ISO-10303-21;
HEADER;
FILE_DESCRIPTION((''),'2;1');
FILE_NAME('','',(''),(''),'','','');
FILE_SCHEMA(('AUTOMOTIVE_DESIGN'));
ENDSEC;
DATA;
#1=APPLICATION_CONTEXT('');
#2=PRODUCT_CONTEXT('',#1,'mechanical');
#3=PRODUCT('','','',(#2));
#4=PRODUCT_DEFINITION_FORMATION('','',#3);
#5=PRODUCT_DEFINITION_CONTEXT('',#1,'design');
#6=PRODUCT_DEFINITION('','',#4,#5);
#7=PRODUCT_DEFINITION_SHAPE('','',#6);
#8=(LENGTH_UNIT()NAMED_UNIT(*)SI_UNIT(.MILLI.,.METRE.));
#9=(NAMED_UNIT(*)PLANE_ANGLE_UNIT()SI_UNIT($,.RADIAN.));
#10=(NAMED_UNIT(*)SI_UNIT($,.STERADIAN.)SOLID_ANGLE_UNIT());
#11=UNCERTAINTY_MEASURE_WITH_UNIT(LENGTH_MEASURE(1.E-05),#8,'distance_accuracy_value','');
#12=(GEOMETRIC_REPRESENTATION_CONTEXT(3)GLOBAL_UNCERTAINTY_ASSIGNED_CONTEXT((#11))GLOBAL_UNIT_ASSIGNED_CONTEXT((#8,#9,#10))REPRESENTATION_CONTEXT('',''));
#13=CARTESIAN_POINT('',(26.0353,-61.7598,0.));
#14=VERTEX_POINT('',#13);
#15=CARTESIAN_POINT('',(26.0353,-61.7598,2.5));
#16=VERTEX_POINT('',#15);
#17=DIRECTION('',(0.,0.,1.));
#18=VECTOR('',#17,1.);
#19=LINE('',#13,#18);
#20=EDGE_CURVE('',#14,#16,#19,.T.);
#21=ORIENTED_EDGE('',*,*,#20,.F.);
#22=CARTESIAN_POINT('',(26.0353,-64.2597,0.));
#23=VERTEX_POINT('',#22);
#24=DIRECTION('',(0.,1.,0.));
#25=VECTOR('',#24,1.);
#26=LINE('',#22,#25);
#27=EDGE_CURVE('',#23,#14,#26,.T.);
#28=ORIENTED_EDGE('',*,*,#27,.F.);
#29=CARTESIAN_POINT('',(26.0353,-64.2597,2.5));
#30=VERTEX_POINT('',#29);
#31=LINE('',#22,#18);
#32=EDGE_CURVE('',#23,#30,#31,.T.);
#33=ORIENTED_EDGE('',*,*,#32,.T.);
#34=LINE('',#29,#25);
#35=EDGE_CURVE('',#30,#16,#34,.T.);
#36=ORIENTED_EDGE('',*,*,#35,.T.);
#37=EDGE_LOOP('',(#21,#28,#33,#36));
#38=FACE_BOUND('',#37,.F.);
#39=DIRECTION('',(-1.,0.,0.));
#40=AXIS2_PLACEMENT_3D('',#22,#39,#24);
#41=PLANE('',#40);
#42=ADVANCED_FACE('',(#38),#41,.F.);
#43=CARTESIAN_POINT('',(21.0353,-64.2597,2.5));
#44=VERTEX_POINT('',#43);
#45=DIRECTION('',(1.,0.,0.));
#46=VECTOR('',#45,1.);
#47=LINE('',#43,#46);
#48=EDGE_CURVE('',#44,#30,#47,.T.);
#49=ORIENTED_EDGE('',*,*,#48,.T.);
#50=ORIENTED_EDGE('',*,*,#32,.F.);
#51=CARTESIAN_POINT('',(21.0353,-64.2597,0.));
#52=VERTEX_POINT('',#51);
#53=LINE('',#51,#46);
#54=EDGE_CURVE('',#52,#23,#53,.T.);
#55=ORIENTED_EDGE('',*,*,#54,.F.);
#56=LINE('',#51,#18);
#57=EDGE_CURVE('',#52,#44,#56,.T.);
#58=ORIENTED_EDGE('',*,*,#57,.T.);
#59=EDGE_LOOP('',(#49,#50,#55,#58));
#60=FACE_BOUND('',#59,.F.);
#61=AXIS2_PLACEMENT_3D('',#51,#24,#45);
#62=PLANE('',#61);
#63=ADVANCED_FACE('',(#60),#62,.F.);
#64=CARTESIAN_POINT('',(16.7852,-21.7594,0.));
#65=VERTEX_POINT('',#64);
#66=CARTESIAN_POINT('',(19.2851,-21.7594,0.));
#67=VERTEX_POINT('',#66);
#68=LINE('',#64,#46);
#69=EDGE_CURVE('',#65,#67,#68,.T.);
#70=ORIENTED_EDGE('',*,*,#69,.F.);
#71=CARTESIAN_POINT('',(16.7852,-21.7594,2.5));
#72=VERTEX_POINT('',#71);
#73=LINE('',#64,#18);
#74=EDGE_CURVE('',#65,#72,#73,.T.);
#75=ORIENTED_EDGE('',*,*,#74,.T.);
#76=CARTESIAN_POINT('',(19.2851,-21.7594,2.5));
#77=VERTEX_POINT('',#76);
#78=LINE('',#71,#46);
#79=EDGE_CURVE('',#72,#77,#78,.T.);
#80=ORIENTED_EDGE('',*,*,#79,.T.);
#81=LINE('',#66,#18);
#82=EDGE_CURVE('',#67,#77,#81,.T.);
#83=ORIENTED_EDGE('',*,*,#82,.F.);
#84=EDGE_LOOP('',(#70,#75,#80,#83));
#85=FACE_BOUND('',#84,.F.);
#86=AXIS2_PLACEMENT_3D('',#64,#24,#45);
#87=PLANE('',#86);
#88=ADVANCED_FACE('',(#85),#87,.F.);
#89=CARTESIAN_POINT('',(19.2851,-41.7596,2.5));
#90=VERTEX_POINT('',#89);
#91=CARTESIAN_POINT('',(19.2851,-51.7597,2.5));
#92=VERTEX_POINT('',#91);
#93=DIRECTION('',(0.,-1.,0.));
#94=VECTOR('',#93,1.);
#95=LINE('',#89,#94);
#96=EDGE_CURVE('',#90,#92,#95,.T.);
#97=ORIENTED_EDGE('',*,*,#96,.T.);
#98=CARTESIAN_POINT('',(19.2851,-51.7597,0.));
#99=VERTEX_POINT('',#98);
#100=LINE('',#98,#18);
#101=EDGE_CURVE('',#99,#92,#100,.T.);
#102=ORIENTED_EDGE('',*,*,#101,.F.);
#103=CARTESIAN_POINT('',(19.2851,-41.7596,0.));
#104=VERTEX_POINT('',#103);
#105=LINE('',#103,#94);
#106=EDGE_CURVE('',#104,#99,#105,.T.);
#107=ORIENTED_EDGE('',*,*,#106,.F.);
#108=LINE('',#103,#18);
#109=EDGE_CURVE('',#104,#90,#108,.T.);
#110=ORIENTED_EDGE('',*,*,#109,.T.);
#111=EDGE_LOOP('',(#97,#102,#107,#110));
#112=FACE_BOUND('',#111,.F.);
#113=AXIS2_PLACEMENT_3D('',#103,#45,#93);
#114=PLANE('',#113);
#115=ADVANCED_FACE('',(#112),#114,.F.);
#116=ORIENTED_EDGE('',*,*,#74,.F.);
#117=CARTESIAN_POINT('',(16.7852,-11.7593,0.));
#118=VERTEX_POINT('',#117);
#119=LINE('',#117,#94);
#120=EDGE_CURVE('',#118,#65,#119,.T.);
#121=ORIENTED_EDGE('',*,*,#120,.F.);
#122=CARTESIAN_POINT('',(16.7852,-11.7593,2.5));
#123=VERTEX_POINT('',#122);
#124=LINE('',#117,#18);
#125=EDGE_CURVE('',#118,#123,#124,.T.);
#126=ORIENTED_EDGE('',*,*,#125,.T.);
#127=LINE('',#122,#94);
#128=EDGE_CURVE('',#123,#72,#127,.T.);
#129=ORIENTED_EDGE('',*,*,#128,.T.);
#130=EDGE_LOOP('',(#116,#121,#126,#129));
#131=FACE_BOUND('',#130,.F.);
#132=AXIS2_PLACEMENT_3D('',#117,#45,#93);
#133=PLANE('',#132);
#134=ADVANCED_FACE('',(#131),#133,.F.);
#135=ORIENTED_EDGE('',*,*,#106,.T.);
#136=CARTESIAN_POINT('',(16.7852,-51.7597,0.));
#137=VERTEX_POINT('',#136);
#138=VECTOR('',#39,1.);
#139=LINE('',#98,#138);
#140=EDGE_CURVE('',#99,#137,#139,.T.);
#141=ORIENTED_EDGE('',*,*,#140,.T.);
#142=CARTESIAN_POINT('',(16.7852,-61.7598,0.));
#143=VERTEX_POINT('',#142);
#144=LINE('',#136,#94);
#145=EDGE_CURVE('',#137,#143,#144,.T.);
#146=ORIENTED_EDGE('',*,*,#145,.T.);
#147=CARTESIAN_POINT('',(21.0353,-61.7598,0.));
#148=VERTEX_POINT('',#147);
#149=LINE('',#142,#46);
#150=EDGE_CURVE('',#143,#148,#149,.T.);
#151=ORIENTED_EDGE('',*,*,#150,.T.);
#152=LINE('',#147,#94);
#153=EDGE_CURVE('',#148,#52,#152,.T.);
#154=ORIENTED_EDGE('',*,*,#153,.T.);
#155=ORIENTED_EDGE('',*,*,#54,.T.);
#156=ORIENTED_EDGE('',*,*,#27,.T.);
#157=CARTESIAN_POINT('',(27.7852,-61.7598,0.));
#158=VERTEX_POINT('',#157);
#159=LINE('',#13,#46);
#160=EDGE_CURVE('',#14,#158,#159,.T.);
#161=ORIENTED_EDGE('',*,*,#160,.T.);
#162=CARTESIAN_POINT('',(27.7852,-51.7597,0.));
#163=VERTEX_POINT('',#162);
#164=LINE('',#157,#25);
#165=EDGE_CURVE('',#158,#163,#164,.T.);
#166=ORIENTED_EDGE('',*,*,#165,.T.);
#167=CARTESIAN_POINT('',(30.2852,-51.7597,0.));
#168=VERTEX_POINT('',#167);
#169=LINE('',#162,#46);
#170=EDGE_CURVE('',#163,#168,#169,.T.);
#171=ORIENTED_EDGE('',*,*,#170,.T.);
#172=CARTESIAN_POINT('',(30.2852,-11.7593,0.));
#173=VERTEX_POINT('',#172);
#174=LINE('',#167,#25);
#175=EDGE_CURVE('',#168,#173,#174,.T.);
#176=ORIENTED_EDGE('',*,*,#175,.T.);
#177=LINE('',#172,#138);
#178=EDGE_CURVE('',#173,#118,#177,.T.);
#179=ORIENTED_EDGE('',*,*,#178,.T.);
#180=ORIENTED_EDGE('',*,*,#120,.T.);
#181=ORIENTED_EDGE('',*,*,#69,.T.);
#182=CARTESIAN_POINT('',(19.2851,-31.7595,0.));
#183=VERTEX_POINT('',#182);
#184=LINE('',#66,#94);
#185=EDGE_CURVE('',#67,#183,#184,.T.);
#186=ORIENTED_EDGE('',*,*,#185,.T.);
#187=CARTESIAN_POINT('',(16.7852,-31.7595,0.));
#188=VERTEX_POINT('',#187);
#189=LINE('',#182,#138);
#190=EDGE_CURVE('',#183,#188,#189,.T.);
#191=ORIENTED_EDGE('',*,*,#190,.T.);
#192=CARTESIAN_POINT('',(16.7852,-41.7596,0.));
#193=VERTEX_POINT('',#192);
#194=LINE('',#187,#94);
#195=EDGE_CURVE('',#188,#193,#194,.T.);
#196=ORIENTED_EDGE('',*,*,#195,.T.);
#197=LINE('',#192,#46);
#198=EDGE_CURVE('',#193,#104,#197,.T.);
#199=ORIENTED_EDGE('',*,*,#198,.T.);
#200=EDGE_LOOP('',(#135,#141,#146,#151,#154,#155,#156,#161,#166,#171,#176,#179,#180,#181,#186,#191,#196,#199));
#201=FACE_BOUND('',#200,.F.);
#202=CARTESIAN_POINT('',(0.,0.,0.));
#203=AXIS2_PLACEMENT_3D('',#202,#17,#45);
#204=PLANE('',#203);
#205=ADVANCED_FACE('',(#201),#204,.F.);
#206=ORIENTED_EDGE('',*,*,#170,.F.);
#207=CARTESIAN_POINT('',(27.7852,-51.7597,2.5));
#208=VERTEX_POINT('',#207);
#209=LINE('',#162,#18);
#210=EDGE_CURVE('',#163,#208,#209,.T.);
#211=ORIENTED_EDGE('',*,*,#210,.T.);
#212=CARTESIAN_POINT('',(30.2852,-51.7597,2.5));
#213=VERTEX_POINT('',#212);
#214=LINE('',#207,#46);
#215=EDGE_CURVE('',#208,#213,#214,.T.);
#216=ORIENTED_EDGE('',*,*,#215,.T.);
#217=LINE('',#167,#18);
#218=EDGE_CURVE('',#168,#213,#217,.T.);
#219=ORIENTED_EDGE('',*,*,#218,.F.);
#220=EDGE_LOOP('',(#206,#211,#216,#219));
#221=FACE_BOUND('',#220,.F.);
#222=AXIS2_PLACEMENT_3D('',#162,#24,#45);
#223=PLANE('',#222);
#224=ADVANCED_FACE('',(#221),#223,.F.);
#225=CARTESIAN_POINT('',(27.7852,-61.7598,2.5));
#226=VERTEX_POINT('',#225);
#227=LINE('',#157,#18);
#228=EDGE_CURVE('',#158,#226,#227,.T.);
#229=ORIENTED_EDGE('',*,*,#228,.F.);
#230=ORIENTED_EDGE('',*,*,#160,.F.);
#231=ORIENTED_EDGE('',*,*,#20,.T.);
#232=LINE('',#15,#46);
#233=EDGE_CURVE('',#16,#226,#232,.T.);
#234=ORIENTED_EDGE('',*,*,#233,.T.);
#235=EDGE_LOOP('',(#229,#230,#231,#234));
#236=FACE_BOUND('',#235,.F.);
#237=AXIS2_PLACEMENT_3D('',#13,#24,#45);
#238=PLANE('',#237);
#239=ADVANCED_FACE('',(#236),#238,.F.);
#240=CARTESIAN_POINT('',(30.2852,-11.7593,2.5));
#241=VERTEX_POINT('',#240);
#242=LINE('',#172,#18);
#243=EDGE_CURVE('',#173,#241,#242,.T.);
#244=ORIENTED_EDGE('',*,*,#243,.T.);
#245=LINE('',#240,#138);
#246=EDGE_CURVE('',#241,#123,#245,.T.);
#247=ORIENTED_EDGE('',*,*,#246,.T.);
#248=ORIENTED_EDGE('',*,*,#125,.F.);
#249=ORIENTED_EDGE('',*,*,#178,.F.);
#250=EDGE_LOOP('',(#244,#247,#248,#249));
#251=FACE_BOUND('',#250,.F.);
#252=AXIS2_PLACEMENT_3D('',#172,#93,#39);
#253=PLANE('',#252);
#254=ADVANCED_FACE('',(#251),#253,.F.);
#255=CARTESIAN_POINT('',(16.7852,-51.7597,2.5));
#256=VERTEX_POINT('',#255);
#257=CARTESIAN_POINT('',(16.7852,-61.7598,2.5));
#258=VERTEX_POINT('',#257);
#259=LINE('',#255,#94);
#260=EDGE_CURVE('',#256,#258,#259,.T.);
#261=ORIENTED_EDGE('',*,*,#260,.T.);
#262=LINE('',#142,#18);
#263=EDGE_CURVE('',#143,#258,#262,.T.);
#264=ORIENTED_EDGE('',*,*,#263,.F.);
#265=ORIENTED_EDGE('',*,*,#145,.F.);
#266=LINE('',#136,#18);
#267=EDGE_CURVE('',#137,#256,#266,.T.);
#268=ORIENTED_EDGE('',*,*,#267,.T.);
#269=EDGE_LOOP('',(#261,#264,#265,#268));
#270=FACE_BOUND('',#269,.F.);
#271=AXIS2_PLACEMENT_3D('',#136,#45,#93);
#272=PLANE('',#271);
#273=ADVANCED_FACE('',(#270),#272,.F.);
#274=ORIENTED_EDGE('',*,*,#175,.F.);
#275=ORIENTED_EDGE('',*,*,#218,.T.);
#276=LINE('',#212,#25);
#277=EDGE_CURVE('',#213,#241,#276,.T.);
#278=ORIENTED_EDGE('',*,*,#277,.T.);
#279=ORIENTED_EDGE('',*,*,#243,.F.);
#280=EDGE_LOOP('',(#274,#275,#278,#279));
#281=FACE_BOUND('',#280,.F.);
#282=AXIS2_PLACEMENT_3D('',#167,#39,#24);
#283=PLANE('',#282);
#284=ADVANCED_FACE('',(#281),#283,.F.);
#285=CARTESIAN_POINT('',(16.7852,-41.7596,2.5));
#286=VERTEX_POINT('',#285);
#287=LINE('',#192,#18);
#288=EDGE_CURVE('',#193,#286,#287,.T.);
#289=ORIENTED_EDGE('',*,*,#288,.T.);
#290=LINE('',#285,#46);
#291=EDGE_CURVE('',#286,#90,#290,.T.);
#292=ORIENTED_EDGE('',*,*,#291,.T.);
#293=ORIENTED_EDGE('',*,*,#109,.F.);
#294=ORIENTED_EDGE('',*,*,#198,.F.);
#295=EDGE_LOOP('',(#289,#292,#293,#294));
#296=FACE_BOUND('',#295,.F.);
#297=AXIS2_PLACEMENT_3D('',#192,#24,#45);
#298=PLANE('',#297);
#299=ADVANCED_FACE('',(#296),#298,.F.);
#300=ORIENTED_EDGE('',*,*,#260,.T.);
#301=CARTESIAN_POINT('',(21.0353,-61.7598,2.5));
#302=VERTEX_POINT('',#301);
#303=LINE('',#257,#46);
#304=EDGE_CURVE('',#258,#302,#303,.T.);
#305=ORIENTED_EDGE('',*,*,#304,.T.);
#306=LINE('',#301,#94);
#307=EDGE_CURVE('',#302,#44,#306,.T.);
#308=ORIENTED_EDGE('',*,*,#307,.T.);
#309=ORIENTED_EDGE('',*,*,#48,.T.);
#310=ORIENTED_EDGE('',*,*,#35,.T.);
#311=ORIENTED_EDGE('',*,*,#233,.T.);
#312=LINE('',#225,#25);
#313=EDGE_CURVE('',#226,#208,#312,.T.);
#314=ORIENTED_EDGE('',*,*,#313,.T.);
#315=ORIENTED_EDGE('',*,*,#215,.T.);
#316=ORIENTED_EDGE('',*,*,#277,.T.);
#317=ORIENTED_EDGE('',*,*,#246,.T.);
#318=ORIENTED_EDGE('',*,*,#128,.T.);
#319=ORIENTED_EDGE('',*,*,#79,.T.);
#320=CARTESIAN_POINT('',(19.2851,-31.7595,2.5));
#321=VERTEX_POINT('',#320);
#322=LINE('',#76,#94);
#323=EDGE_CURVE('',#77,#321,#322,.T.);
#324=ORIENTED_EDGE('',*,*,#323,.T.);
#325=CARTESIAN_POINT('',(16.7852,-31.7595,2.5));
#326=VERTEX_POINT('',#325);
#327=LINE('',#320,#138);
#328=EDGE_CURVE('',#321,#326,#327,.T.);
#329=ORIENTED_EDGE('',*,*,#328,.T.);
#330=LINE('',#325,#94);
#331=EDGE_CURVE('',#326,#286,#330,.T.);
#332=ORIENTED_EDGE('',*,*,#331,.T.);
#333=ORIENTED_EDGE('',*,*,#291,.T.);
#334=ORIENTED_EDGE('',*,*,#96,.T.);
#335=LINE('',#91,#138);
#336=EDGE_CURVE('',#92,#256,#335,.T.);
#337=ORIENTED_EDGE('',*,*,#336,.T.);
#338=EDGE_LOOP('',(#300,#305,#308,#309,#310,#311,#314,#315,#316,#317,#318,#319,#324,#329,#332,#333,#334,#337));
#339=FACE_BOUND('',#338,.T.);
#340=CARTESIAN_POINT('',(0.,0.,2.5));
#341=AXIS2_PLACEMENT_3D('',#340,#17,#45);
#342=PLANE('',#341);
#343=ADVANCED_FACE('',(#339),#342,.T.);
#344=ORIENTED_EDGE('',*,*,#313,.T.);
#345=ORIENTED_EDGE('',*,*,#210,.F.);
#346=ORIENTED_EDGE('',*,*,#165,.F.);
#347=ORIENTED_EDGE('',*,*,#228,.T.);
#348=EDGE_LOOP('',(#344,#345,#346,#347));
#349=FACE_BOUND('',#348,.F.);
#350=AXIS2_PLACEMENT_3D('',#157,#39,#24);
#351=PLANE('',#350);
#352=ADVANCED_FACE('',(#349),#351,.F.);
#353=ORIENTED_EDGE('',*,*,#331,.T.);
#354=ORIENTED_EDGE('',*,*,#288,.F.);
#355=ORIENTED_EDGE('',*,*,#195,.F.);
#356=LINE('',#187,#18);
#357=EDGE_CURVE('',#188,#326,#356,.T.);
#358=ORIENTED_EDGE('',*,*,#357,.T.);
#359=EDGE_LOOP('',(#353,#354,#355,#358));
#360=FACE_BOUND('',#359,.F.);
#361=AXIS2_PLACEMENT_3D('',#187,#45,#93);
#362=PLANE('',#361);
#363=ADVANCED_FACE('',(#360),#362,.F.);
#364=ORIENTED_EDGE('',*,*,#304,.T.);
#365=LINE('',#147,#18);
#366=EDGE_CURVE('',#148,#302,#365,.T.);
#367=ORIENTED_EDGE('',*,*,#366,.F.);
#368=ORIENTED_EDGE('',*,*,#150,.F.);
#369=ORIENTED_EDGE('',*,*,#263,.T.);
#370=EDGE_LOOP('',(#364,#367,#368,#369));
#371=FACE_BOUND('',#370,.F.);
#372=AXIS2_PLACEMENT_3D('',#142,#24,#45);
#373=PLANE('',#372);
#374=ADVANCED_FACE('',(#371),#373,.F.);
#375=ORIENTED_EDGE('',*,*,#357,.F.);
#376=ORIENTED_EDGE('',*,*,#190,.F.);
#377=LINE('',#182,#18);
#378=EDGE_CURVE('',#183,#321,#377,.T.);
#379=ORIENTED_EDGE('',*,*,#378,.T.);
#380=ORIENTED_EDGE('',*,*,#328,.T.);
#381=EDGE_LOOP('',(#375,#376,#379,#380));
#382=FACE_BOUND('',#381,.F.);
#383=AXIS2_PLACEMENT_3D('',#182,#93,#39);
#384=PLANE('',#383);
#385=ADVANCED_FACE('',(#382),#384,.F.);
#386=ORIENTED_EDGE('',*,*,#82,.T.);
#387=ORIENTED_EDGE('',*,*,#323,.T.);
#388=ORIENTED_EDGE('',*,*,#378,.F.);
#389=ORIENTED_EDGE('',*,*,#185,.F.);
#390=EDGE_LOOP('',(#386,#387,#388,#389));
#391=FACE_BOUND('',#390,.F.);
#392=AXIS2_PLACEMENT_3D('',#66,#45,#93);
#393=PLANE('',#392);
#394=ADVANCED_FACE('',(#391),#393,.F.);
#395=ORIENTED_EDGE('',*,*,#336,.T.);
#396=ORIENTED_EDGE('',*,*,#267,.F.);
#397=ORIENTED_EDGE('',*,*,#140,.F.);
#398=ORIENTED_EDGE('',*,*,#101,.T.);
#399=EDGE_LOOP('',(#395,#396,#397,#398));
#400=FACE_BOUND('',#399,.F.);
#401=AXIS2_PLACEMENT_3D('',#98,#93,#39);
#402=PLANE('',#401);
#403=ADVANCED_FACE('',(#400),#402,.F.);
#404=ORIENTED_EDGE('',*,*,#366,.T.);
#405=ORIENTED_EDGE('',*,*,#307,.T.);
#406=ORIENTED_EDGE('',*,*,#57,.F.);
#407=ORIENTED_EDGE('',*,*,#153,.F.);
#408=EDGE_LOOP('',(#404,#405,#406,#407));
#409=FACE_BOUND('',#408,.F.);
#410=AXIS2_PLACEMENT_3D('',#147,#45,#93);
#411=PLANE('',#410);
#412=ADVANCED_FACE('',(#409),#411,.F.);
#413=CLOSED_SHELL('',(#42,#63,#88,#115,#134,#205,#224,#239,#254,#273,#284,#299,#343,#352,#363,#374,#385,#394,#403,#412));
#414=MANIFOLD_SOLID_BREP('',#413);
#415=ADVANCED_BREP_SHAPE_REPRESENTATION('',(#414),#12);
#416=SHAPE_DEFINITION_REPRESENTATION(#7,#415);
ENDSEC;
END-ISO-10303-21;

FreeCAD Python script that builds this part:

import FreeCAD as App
import Part
import Sketcher

doc = App.newDocument("Part")
body = doc.addObject("PartDesign::Body", "Body")

# Sketch on XY plane
sketch1 = body.newObject("Sketcher::SketchObject", "Sketch")
sketch1.AttachmentSupport = (doc.getObject("XY_Plane"), [""])
sketch1.MapMode = "FlatFace"
sketch1.addGeometry(Part.LineSegment(App.Vector(16.8, -21.8, 0), App.Vector(19.3, -21.8, 0)), False)
sketch1.addGeometry(Part.LineSegment(App.Vector(19.3, -21.8, 0), App.Vector(19.3, -31.8, 0)), False)
sketch1.addGeometry(Part.LineSegment(App.Vector(19.3, -31.8, 0), App.Vector(16.8, -31.8, 0)), False)
sketch1.addGeometry(Part.LineSegment(App.Vector(16.8, -31.8, 0), App.Vector(16.8, -41.8, 0)), False)
sketch1.addGeometry(Part.LineSegment(App.Vector(16.8, -41.8, 0), App.Vector(19.3, -41.8, 0)), False)
sketch1.addGeometry(Part.LineSegment(App.Vector(19.3, -41.8, 0), App.Vector(19.3, -51.8, 0)), False)
sketch1.addGeometry(Part.LineSegment(App.Vector(19.3, -51.8, 0), App.Vector(16.8, -51.8, 0)), False)
sketch1.addGeometry(Part.LineSegment(App.Vector(16.8, -51.8, 0), App.Vector(16.8, -61.8, 0)), False)
sketch1.addGeometry(Part.LineSegment(App.Vector(16.8, -61.8, 0), App.Vector(21, -61.8, 0)), False)
sketch1.addGeometry(Part.LineSegment(App.Vector(21, -61.8, 0), App.Vector(21, -64.3, 0)), False)
sketch1.addGeometry(Part.LineSegment(App.Vector(21, -64.3, 0), App.Vector(26, -64.3, 0)), False)
sketch1.addGeometry(Part.LineSegment(App.Vector(26, -64.3, 0), App.Vector(26, -61.8, 0)), False)
sketch1.addGeometry(Part.LineSegment(App.Vector(26, -61.8, 0), App.Vector(27.8, -61.8, 0)), False)
sketch1.addGeometry(Part.LineSegment(App.Vector(27.8, -61.8, 0), App.Vector(27.8, -51.8, 0)), False)
sketch1.addGeometry(Part.LineSegment(App.Vector(27.8, -51.8, 0), App.Vector(30.3, -51.8, 0)), False)
sketch1.addGeometry(Part.LineSegment(App.Vector(30.3, -51.8, 0), App.Vector(30.3, -11.8, 0)), False)
sketch1.addGeometry(Part.LineSegment(App.Vector(30.3, -11.8, 0), App.Vector(16.8, -11.8, 0)), False)
sketch1.addGeometry(Part.LineSegment(App.Vector(16.8, -11.8, 0), App.Vector(16.8, -21.8, 0)), False)
sketch1.addConstraint(Sketcher.Constraint("Coincident", 0, 2, 1, 1))
sketch1.addConstraint(Sketcher.Constraint("Coincident", 1, 2, 2, 1))
sketch1.addConstraint(Sketcher.Constraint("Coincident", 2, 2, 3, 1))
sketch1.addConstraint(Sketcher.Constraint("Coincident", 3, 2, 4, 1))
sketch1.addConstraint(Sketcher.Constraint("Coincident", 4, 2, 5, 1))
sketch1.addConstraint(Sketcher.Constraint("Coincident", 5, 2, 6, 1))
sketch1.addConstraint(Sketcher.Constraint("Coincident", 6, 2, 7, 1))
sketch1.addConstraint(Sketcher.Constraint("Coincident", 7, 2, 8, 1))
sketch1.addConstraint(Sketcher.Constraint("Coincident", 8, 2, 9, 1))
sketch1.addConstraint(Sketcher.Constraint("Coincident", 9, 2, 10, 1))
sketch1.addConstraint(Sketcher.Constraint("Coincident", 10, 2, 11, 1))
sketch1.addConstraint(Sketcher.Constraint("Coincident", 11, 2, 12, 1))
sketch1.addConstraint(Sketcher.Constraint("Coincident", 12, 2, 13, 1))
sketch1.addConstraint(Sketcher.Constraint("Coincident", 13, 2, 14, 1))
sketch1.addConstraint(Sketcher.Constraint("Coincident", 14, 2, 15, 1))
sketch1.addConstraint(Sketcher.Constraint("Coincident", 15, 2, 16, 1))
sketch1.addConstraint(Sketcher.Constraint("Coincident", 16, 2, 17, 1))
sketch1.addConstraint(Sketcher.Constraint("Coincident", 17, 2, 0, 1))
sketch1.addConstraint(Sketcher.Constraint("Horizontal", 0))
sketch1.addConstraint(Sketcher.Constraint("Vertical", 1))
sketch1.addConstraint(Sketcher.Constraint("Horizontal", 2))
sketch1.addConstraint(Sketcher.Constraint("Vertical", 3))
sketch1.addConstraint(Sketcher.Constraint("Horizontal", 4))
sketch1.addConstraint(Sketcher.Constraint("Vertical", 5))
sketch1.addConstraint(Sketcher.Constraint("Horizontal", 6))
sketch1.addConstraint(Sketcher.Constraint("Vertical", 7))
sketch1.addConstraint(Sketcher.Constraint("Horizontal", 8))
sketch1.addConstraint(Sketcher.Constraint("Vertical", 9))
sketch1.addConstraint(Sketcher.Constraint("Horizontal", 10))
sketch1.addConstraint(Sketcher.Constraint("Vertical", 11))
sketch1.addConstraint(Sketcher.Constraint("Horizontal", 12))
sketch1.addConstraint(Sketcher.Constraint("Vertical", 13))
sketch1.addConstraint(Sketcher.Constraint("Horizontal", 14))
sketch1.addConstraint(Sketcher.Constraint("Vertical", 15))
sketch1.addConstraint(Sketcher.Constraint("Horizontal", 16))
sketch1.addConstraint(Sketcher.Constraint("Vertical", 17))
sketch1.addConstraint(Sketcher.Constraint("Horizontal", 8, 2, 11, 2))
sketch1.addConstraint(Sketcher.Constraint("Horizontal", 6, 2, 13, 2))
sketch1.addConstraint(Sketcher.Constraint("Vertical", 1, 2, 4, 2))
sketch1.addConstraint(Sketcher.Constraint("Vertical", 3, 2, 6, 2))
sketch1.addConstraint(Sketcher.Constraint("Vertical", 7, 2, 16, 2))
sketch1.addConstraint(Sketcher.Constraint("Equal", 6, 14))
sketch1.addConstraint(Sketcher.Constraint("Equal", 1, 3))
sketch1.addConstraint(Sketcher.Constraint("Equal", 3, 5))
sketch1.addConstraint(Sketcher.Constraint("Equal", 5, 7))
sketch1.addConstraint(Sketcher.Constraint("Equal", 14, 9))
sketch1.addConstraint(Sketcher.Constraint("Equal", 13, 17))
sketch1.addConstraint(Sketcher.Constraint("DistanceX", 10, 1, 10, 2, 5.0))
sketch1.addConstraint(Sketcher.Constraint("DistanceY", 1, 2, 1, 1, 10.0))
sketch1.addConstraint(Sketcher.Constraint("DistanceX", 0, 1, 0, 2, 2.5))
sketch1.addConstraint(Sketcher.Constraint("DistanceX", 16, 2, 16, 1, 13.5))
sketch1.addConstraint(Sketcher.Constraint("DistanceX", 8, 1, 8, 2, 4.25))
sketch1.addConstraint(Sketcher.Constraint("DistanceX", -1, 1, 0, 2, 19.285))
sketch1.addConstraint(Sketcher.Constraint("DistanceY", 0, 2, -1, 1, 21.7594))
pad1 = body.newObject("PartDesign::Pad", "Pad")
pad1.Profile = sketch1
pad1.Length = 2.5

doc.recompute()
